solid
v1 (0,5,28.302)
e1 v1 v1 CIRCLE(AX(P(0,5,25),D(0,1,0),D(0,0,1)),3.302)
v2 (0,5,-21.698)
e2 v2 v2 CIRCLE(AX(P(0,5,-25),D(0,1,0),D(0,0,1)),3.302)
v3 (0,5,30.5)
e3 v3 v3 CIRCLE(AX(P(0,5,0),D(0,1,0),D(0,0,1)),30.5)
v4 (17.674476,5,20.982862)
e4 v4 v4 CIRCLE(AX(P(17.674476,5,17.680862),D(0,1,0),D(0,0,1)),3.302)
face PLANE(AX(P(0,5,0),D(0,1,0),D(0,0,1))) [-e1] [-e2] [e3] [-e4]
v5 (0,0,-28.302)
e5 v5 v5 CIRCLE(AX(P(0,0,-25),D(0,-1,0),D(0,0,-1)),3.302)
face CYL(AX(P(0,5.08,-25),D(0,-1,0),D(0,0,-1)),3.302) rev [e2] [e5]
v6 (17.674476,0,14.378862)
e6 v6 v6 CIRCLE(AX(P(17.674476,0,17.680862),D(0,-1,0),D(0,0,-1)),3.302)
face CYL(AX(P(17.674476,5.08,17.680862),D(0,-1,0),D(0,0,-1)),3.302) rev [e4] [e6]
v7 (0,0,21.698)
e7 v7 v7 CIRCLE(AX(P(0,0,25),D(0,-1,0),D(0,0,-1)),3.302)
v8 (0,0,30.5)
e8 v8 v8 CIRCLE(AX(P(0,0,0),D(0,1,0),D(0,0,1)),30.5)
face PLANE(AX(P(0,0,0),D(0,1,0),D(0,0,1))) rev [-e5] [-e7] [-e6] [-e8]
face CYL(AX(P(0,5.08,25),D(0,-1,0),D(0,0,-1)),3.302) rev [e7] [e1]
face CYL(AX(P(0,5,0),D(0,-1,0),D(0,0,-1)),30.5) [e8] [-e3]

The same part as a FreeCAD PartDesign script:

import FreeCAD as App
import Part
import Sketcher

doc = App.newDocument("Part")
params = doc.addObject("Spreadsheet::Sheet", "Params")
for row, (alias, value) in enumerate([
    ("sketch1_diameter", "61 mm"),
    ("pad1_length", "5 mm"),
    ("pocket1_length", "5.08 mm"),
    ("pocket2_length", "5.08 mm"),
    ("pocket3_length", "5.08 mm"),
], start=1):
    params.set(f"A{row}", alias)
    params.set(f"B{row}", "=" + value)
    params.setAlias(f"B{row}", alias)

body = doc.addObject("PartDesign::Body", "Body")

# Sketch on XZ plane
sketch1 = doc.addObject("Sketcher::SketchObject", "Sketch")
body.addObject(sketch1)
sketch1.AttachmentSupport = (doc.XZ_Plane, [""])
sketch1.MapMode = "FlatFace"
sketch1.addGeometry(Part.Circle(App.Vector(0, 0, 0), App.Vector(0, 0, 1), 30), False)
sketch1.addConstraint([
    Sketcher.Constraint("Coincident", 0, 3, -1, 1),
    Sketcher.Constraint("Diameter", 0, 61.0),
])
sketch1.setExpression("Constraints[1]", "Params.sketch1_diameter")
pad1 = doc.addObject("PartDesign::Pad", "Pad")
body.addObject(pad1)
pad1.Profile = sketch1
pad1.setExpression("Length", "Params.pad1_length")
pad1.Reversed = True

# Sketch on XZ plane
sketch2 = doc.addObject("Sketcher::SketchObject", "Sketch001")
body.addObject(sketch2)
sketch2.AttachmentSupport = (doc.XZ_Plane, [""])
sketch2.MapMode = "FlatFace"
sketch2.addGeometry(Part.Circle(App.Vector(0, -25, 0), App.Vector(0, 0, 1), 3.3), False)
sketch2.addConstraint([
    Sketcher.Constraint("PointOnObject", 0, 3, -2),
    Sketcher.Constraint("Diameter", 0, 6.604),
    Sketcher.Constraint("DistanceY", 0, 3, -1, 1, 25.0),
])
pocket1 = doc.addObject("PartDesign::Pocket", "Pocket")
body.addObject(pocket1)
pocket1.Profile = sketch2
pocket1.setExpression("Length", "Params.pocket1_length")

# Sketch on XZ plane
sketch3 = doc.addObject("Sketcher::SketchObject", "Sketch002")
body.addObject(sketch3)
sketch3.AttachmentSupport = (doc.XZ_Plane, [""])
sketch3.MapMode = "FlatFace"
sketch3.addGeometry(Part.Circle(App.Vector(0, 25, 0), App.Vector(0, 0, 1), 3.3), False)
sketch3.addConstraint([
    Sketcher.Constraint("PointOnObject", 0, 3, -2),
    Sketcher.Constraint("Diameter", 0, 6.604),
    Sketcher.Constraint("DistanceY", -1, 1, 0, 3, 25.0),
])
pocket2 = doc.addObject("PartDesign::Pocket", "Pocket001")
body.addObject(pocket2)
pocket2.Profile = sketch3
pocket2.setExpression("Length", "Params.pocket2_length")

# Sketch on XZ plane
sketch4 = doc.addObject("Sketcher::SketchObject", "Sketch003")
body.addObject(sketch4)
sketch4.AttachmentSupport = (doc.XZ_Plane, [""])
sketch4.MapMode = "FlatFace"
sketch4.addGeometry(Part.Circle(App.Vector(17.7, 17.7, 0), App.Vector(0, 0, 1), 3.3), False)
sketch4.addConstraint([
    Sketcher.Constraint("Diameter", 0, 6.604),
    Sketcher.Constraint("DistanceX", -1, 1, 0, 3, 17.674476),
    Sketcher.Constraint("DistanceY", -1, 1, 0, 3, 17.680862),
])
pocket3 = doc.addObject("PartDesign::Pocket", "Pocket002")
body.addObject(pocket3)
pocket3.Profile = sketch4
pocket3.setExpression("Length", "Params.pocket3_length")

doc.recompute()
